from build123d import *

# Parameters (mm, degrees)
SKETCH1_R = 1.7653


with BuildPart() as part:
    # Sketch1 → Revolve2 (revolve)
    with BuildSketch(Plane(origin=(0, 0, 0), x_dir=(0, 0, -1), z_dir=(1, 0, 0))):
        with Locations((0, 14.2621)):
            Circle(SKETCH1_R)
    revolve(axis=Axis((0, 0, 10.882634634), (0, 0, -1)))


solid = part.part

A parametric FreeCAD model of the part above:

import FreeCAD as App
import Part
import Sketcher

V = App.Vector
Q = App.Units.Quantity

doc = App.newDocument("Part")
body = doc.addObject("PartDesign::Body", "Body")

sketch1 = body.newObject("Sketcher::SketchObject", "Sketch")
sketch1.AttachmentSupport = (doc.getObject("YZ_Plane"), [""])
sketch1.MapMode = "FlatFace"
sketch1.addGeometry(Part.Circle(V(14.2621, 0, 0), V(0, 0, 1), 1.7653), False)
sketch1.addConstraint(Sketcher.Constraint("PointOnObject", 0, 3, -1))
sketch1.addConstraint(Sketcher.Constraint("Diameter", 0, Q("0.139 in")))
sketch1.addConstraint(Sketcher.Constraint("DistanceX", -1, 1, 0, 3, Q("0.5615 in")))
revolution = body.newObject("PartDesign::Revolution", "Revolution")
revolution.Profile = sketch1
revolution.ReferenceAxis = (sketch1, ["V_Axis"])
revolution.Angle = 360

doc.recompute()
